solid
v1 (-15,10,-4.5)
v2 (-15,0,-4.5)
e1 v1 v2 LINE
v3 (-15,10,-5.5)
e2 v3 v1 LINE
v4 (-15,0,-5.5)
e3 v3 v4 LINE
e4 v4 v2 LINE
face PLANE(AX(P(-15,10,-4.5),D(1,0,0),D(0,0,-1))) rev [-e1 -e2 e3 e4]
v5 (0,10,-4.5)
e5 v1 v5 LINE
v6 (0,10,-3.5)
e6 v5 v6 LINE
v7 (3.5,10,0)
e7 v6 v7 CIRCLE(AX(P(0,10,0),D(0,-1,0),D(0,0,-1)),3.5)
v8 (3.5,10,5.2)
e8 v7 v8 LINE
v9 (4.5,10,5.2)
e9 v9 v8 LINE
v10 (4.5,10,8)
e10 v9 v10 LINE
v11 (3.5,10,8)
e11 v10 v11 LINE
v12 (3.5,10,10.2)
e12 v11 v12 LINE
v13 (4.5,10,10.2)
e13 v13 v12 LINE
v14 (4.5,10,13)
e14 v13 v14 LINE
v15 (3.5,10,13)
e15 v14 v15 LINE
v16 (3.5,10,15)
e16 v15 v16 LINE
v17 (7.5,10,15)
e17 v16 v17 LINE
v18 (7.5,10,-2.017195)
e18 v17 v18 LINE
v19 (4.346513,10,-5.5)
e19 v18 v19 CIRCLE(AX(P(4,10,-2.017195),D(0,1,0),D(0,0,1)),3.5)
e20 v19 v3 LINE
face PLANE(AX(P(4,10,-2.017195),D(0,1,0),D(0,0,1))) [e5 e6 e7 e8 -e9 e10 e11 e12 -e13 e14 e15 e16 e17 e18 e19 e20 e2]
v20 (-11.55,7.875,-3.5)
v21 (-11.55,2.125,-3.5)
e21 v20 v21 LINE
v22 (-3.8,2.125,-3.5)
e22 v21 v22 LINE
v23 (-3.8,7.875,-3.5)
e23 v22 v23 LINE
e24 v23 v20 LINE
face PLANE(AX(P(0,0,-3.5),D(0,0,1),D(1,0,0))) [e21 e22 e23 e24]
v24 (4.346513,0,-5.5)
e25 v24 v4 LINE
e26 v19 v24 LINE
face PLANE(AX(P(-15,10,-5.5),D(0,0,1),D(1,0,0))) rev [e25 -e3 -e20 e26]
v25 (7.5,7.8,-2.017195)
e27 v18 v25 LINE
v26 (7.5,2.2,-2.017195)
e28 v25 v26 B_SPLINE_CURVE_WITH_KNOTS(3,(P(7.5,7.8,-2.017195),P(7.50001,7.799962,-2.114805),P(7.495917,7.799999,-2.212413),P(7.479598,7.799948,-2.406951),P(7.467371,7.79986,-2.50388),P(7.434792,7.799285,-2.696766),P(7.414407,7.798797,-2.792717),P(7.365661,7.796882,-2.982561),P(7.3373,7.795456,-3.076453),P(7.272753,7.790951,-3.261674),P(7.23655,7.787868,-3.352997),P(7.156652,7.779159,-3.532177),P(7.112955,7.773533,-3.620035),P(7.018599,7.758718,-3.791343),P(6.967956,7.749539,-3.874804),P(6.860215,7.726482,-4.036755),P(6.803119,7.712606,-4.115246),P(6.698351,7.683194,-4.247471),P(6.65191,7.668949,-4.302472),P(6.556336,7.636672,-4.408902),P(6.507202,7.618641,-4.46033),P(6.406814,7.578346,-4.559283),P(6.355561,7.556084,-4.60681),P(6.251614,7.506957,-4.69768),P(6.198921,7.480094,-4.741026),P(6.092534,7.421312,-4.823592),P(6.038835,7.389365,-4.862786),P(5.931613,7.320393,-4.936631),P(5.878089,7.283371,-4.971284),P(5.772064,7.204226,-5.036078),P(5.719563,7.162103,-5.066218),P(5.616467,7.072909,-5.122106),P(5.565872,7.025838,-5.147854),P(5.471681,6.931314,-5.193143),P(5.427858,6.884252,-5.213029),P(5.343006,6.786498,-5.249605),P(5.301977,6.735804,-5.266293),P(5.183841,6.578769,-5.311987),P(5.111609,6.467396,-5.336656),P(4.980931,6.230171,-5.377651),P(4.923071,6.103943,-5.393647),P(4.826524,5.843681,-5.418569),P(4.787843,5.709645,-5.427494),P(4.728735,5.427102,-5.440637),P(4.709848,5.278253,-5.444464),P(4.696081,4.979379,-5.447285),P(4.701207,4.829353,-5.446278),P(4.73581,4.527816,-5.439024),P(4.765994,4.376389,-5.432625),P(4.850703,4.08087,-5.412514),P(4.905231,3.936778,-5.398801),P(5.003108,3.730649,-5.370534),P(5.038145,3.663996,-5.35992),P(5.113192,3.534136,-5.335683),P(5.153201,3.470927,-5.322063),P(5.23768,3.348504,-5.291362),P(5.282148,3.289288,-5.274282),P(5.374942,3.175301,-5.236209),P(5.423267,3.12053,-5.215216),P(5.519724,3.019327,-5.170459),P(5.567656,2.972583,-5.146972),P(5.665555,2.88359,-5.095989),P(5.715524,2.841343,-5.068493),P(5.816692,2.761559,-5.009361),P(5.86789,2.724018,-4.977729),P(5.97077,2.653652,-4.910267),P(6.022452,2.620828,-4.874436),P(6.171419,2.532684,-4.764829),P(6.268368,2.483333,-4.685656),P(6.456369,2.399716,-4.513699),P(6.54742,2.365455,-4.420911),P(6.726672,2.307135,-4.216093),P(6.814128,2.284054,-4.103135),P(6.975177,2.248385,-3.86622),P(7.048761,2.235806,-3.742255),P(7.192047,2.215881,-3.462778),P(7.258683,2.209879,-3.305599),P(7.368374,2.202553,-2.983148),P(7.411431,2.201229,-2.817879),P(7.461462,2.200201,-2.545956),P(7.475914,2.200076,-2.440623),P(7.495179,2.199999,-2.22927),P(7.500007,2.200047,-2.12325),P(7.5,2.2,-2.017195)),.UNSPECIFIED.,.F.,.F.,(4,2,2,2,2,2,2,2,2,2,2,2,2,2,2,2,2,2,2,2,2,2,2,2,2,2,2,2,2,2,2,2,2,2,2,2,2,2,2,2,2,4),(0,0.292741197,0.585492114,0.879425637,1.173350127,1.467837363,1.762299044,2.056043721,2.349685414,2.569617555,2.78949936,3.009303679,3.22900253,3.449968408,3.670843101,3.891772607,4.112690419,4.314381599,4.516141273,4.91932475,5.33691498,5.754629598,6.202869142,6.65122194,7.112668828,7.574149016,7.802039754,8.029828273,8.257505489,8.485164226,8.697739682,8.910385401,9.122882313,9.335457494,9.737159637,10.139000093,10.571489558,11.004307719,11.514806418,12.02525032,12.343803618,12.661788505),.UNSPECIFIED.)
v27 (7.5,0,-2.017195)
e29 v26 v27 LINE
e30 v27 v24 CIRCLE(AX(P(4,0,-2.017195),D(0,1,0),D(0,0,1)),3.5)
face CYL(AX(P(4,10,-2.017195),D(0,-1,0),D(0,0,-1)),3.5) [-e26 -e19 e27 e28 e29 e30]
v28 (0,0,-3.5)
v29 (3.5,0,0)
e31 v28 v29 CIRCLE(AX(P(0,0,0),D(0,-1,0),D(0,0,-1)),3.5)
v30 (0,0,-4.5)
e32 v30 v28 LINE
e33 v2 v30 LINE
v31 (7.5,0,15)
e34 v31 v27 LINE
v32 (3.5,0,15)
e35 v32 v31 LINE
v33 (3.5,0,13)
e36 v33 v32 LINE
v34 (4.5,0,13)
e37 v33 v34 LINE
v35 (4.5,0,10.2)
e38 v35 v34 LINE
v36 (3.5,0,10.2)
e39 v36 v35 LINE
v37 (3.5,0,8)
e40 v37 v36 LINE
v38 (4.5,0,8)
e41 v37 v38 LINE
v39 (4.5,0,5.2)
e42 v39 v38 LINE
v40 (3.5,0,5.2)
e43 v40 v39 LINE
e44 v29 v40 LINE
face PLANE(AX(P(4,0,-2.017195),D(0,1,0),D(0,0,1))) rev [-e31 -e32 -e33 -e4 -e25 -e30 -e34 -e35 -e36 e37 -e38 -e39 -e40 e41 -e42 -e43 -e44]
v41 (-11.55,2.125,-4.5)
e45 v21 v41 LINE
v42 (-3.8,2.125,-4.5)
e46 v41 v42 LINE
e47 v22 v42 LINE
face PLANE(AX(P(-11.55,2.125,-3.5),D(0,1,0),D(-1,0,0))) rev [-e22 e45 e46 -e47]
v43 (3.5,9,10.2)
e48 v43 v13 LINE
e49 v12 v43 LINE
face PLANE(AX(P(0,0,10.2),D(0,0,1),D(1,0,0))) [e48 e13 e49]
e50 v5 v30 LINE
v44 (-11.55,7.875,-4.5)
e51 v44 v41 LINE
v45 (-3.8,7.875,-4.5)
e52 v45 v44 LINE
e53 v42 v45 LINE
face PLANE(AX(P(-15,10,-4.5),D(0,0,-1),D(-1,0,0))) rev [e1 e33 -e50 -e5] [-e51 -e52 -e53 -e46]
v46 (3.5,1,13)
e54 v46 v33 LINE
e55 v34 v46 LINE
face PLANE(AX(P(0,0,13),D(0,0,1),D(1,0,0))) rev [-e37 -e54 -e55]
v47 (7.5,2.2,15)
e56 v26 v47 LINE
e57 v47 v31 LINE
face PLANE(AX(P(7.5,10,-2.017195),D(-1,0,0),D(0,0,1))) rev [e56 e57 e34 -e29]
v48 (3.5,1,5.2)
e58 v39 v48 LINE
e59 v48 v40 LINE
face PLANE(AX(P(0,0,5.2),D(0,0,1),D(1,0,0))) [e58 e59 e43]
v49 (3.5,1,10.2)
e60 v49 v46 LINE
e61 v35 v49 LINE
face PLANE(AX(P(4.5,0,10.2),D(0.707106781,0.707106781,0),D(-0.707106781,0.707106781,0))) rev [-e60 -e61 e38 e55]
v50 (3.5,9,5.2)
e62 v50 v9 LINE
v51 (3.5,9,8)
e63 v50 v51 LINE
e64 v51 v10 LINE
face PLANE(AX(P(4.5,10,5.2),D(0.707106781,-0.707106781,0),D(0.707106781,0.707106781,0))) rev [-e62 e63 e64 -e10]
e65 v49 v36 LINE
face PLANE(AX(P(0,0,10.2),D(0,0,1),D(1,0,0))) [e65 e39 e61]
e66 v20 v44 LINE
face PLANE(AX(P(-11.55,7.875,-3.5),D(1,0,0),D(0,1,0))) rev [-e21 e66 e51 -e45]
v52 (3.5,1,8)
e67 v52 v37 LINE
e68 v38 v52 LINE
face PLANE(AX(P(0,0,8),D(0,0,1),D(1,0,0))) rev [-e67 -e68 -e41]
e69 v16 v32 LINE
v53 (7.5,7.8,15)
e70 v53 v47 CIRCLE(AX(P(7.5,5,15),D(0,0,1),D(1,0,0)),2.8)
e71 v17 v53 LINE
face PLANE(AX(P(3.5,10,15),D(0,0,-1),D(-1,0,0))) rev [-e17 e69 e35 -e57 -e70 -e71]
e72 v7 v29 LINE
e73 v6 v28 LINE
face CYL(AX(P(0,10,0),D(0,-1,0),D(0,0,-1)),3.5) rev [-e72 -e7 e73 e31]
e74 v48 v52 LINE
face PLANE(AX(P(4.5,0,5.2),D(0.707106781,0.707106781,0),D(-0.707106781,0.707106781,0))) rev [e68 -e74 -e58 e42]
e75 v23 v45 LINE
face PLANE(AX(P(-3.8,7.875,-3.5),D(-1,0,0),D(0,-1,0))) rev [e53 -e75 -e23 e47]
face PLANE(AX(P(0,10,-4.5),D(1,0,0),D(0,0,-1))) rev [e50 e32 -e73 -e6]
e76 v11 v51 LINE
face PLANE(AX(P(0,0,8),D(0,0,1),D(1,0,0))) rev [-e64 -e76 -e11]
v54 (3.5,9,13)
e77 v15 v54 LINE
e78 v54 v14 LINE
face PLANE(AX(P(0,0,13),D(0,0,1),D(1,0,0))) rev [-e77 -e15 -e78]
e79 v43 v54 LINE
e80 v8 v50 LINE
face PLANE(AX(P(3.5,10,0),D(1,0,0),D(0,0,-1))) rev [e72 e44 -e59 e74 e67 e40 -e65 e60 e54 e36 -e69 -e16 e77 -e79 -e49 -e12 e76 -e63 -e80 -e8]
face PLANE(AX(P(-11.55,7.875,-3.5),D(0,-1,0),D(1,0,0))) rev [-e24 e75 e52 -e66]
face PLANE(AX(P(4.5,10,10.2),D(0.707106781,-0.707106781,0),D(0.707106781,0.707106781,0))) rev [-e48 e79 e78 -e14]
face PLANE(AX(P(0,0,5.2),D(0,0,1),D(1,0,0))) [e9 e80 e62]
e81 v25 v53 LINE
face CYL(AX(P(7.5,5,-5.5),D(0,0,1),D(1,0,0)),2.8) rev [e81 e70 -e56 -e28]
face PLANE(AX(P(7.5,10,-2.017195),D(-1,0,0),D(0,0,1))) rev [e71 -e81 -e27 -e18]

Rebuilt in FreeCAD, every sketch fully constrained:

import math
import FreeCAD as App
import Part
import Sketcher
from FreeCAD import Vector


def add_polygon(sketch, points):
    """Adds a closed chain of lines whose ends are joined by coincident constraints."""
    first, n = sketch.GeometryCount, len(points)
    for a, b in zip(points, points[1:] + points[:1]):
        sketch.addGeometry(Part.LineSegment(App.Vector(*a, 0), App.Vector(*b, 0)), False)
    for i in range(n):
        sketch.addConstraint(Sketcher.Constraint("Coincident", first + i, 2, first + (i + 1) % n, 1))

doc = App.newDocument("Part")
body = doc.addObject("PartDesign::Body", "Body")

# Sketch on XZ plane
sketch1 = doc.addObject("Sketcher::SketchObject", "Sketch")
body.addObject(sketch1)
sketch1.AttachmentSupport = (doc.XZ_Plane, [""])
sketch1.MapMode = "FlatFace"
sketch1.addGeometry([
    Part.LineSegment(Vector(-15, -4.5, 0), Vector(0, -4.5, 0)),  # 0
    Part.LineSegment(Vector(0, -4.5, 0), Vector(0, -3.5, 0)),  # 1
    Part.ArcOfCircle(Part.Circle(Vector(0, 0, 0), Vector(0, 0, 1), 3.5), math.radians(-90), math.radians(0)),  # 2
    Part.LineSegment(Vector(3.5, 0, 0), Vector(3.5, 15, 0)),  # 3
    Part.LineSegment(Vector(3.5, 15, 0), Vector(7.5, 15, 0)),  # 4
    Part.LineSegment(Vector(7.5, 15, 0), Vector(7.5, -2.017195, 0)),  # 5
    Part.ArcOfCircle(Part.Circle(Vector(4, -2.017195, 0), Vector(0, 0, 1), 3.5), math.radians(-84.318196), math.radians(0)),  # 6
    Part.LineSegment(Vector(4.346513, -5.5, 0), Vector(-15, -5.5, 0)),  # 7
    Part.LineSegment(Vector(-15, -5.5, 0), Vector(-15, -4.5, 0)),  # 8
], False)
sketch1.addConstraint([
    Sketcher.Constraint("Coincident", 0, 2, 1, 1),
    Sketcher.Constraint("Coincident", 1, 2, 2, 1),
    Sketcher.Constraint("Tangent", 2, 2, 3, 1),
    Sketcher.Constraint("Coincident", 3, 2, 4, 1),
    Sketcher.Constraint("Coincident", 4, 2, 5, 1),
    Sketcher.Constraint("Tangent", 5, 2, 6, 2),
    Sketcher.Constraint("Coincident", 6, 1, 7, 1),
    Sketcher.Constraint("Coincident", 7, 2, 8, 1),
    Sketcher.Constraint("Coincident", 8, 2, 0, 1),
    Sketcher.Constraint("Horizontal", 0),
    Sketcher.Constraint("Vertical", 1),
    Sketcher.Constraint("Vertical", 3),
    Sketcher.Constraint("Horizontal", 4),
    Sketcher.Constraint("Vertical", 5),
    Sketcher.Constraint("Horizontal", 7),
    Sketcher.Constraint("Vertical", 8),
    Sketcher.Constraint("Coincident", 2, 3, -1, 1),
    Sketcher.Constraint("Equal", 2, 6),
    Sketcher.Constraint("PointOnObject", 0, 2, -2),
    Sketcher.Constraint("Equal", 0, 3),
    Sketcher.Constraint("Equal", 1, 8),
    Sketcher.Constraint("Radius", 2, 3.5),
    Sketcher.Constraint("DistanceX", 0, 1, 0, 2, 15.0),
    Sketcher.Constraint("DistanceX", 4, 1, 4, 2, 4.0),
    Sketcher.Constraint("DistanceY", 1, 1, 1, 2, 1.0),
    Sketcher.Constraint("DistanceX", 7, 2, 7, 1, 19.346513),
])
pad1 = doc.addObject("PartDesign::Pad", "Pad")
body.addObject(pad1)
pad1.Profile = sketch1
pad1.Length = 10
pad1.Reversed = True

# Sketch on XY plane
sketch2 = doc.addObject("Sketcher::SketchObject", "Sketch001")
body.addObject(sketch2)
sketch2.AttachmentSupport = (doc.XY_Plane, [""])
sketch2.MapMode = "FlatFace"
sketch2.AttachmentOffset = App.Placement(Vector(0, 0, -4.5), App.Rotation())
add_polygon(sketch2, [(-11.55, 7.875), (-11.55, 2.125), (-3.8, 2.125), (-3.8, 7.875)])  # lines 0-3
sketch2.addConstraint([
    Sketcher.Constraint("Vertical", 0),
    Sketcher.Constraint("Horizontal", 1),
    Sketcher.Constraint("Vertical", 2),
    Sketcher.Constraint("Horizontal", 3),
    Sketcher.Constraint("DistanceX", 1, 1, 1, 2, 7.75),
    Sketcher.Constraint("DistanceY", 0, 2, 0, 1, 5.75),
    Sketcher.Constraint("DistanceX", 1, 2, -1, 1, 3.8),
    Sketcher.Constraint("DistanceY", -1, 1, 0, 2, 2.125),
])
pad2 = doc.addObject("PartDesign::Pad", "Pad001")
body.addObject(pad2)
pad2.Profile = sketch2
pad2.Length = 1

# Sketch on XY plane
sketch3 = doc.addObject("Sketcher::SketchObject", "Sketch002")
body.addObject(sketch3)
sketch3.AttachmentSupport = (doc.XY_Plane, [""])
sketch3.MapMode = "FlatFace"
sketch3.AttachmentOffset = App.Placement(Vector(0, 0, 15), App.Rotation())
sketch3.addGeometry([
    Part.LineSegment(Vector(7.5, 2.2, 0), Vector(7.5, 7.8, 0)),
    Part.ArcOfCircle(Part.Circle(Vector(7.5, 5, 0), Vector(0, 0, 1), 2.8), math.radians(90), math.radians(270)),
], False)
sketch3.addConstraint([
    Sketcher.Constraint("Coincident", 0, 1, 1, 2),
    Sketcher.Constraint("Coincident", 1, 1, 0, 2),
    Sketcher.Constraint("Vertical", 0),
    Sketcher.Constraint("Vertical", 1, 3, 0, 1),
    Sketcher.Constraint("Radius", 1, 2.8),
    Sketcher.Constraint("DistanceY", -1, 1, 1, 3, 5.0),
    Sketcher.Constraint("DistanceX", -1, 1, 1, 3, 7.5),
])
pocket1 = doc.addObject("PartDesign::Pocket", "Pocket")
body.addObject(pocket1)
pocket1.Profile = sketch3
pocket1.Type = "ThroughAll"

# Sketch on XY plane
sketch4 = doc.addObject("Sketcher::SketchObject", "Sketch003")
body.addObject(sketch4)
sketch4.AttachmentSupport = (doc.XY_Plane, [""])
sketch4.MapMode = "FlatFace"
sketch4.AttachmentOffset = App.Placement(Vector(0, 0, 13), App.Rotation())
add_polygon(sketch4, [(3.5, 9), (4.5, 10), (3.5, 10)])  # lines 0-2
add_polygon(sketch4, [(3.5, 1), (3.5, 0), (4.5, 0)])  # lines 3-5
sketch4.addConstraint([
    Sketcher.Constraint("Horizontal", 1),
    Sketcher.Constraint("Vertical", 2),
    Sketcher.Constraint("Vertical", 3),
    Sketcher.Constraint("Horizontal", 4),
    Sketcher.Constraint("PointOnObject", 3, 2, -1),
    Sketcher.Constraint("Perpendicular", 0, 5),
    Sketcher.Constraint("Vertical", 2, 2, 3, 2),
    Sketcher.Constraint("Vertical", 0, 2, 4, 2),
    Sketcher.Constraint("Equal", 4, 2),
    Sketcher.Constraint("DistanceX", 1, 2, 1, 1, 1.0),
    Sketcher.Constraint("DistanceY", -1, 1, 0, 2, 10.0),
    Sketcher.Constraint("DistanceX", -1, 1, 0, 2, 4.5),
])
pocket2 = doc.addObject("PartDesign::Pocket", "Pocket001")
body.addObject(pocket2)
pocket2.Profile = sketch4
pocket2.Length = 2.8

# Sketch on XY plane
sketch5 = doc.addObject("Sketcher::SketchObject", "Sketch004")
body.addObject(sketch5)
sketch5.AttachmentSupport = (doc.XY_Plane, [""])
sketch5.MapMode = "FlatFace"
sketch5.AttachmentOffset = App.Placement(Vector(0, 0, 8), App.Rotation())
add_polygon(sketch5, [(3.5, 9), (4.5, 10), (3.5, 10)])  # lines 0-2
add_polygon(sketch5, [(3.5, 1), (3.5, 0), (4.5, 0)])  # lines 3-5
sketch5.addConstraint([
    Sketcher.Constraint("Horizontal", 1),
    Sketcher.Constraint("Vertical", 2),
    Sketcher.Constraint("Vertical", 3),
    Sketcher.Constraint("Horizontal", 4),
    Sketcher.Constraint("PointOnObject", 3, 2, -1),
    Sketcher.Constraint("Perpendicular", 0, 5),
    Sketcher.Constraint("Vertical", 2, 2, 3, 2),
    Sketcher.Constraint("Vertical", 0, 2, 4, 2),
    Sketcher.Constraint("Equal", 4, 2),
    Sketcher.Constraint("DistanceX", 1, 2, 1, 1, 1.0),
    Sketcher.Constraint("DistanceY", -1, 1, 0, 2, 10.0),
    Sketcher.Constraint("DistanceX", -1, 1, 0, 2, 4.5),
])
pocket3 = doc.addObject("PartDesign::Pocket", "Pocket002")
body.addObject(pocket3)
pocket3.Profile = sketch5
pocket3.Length = 2.8

doc.recompute()
